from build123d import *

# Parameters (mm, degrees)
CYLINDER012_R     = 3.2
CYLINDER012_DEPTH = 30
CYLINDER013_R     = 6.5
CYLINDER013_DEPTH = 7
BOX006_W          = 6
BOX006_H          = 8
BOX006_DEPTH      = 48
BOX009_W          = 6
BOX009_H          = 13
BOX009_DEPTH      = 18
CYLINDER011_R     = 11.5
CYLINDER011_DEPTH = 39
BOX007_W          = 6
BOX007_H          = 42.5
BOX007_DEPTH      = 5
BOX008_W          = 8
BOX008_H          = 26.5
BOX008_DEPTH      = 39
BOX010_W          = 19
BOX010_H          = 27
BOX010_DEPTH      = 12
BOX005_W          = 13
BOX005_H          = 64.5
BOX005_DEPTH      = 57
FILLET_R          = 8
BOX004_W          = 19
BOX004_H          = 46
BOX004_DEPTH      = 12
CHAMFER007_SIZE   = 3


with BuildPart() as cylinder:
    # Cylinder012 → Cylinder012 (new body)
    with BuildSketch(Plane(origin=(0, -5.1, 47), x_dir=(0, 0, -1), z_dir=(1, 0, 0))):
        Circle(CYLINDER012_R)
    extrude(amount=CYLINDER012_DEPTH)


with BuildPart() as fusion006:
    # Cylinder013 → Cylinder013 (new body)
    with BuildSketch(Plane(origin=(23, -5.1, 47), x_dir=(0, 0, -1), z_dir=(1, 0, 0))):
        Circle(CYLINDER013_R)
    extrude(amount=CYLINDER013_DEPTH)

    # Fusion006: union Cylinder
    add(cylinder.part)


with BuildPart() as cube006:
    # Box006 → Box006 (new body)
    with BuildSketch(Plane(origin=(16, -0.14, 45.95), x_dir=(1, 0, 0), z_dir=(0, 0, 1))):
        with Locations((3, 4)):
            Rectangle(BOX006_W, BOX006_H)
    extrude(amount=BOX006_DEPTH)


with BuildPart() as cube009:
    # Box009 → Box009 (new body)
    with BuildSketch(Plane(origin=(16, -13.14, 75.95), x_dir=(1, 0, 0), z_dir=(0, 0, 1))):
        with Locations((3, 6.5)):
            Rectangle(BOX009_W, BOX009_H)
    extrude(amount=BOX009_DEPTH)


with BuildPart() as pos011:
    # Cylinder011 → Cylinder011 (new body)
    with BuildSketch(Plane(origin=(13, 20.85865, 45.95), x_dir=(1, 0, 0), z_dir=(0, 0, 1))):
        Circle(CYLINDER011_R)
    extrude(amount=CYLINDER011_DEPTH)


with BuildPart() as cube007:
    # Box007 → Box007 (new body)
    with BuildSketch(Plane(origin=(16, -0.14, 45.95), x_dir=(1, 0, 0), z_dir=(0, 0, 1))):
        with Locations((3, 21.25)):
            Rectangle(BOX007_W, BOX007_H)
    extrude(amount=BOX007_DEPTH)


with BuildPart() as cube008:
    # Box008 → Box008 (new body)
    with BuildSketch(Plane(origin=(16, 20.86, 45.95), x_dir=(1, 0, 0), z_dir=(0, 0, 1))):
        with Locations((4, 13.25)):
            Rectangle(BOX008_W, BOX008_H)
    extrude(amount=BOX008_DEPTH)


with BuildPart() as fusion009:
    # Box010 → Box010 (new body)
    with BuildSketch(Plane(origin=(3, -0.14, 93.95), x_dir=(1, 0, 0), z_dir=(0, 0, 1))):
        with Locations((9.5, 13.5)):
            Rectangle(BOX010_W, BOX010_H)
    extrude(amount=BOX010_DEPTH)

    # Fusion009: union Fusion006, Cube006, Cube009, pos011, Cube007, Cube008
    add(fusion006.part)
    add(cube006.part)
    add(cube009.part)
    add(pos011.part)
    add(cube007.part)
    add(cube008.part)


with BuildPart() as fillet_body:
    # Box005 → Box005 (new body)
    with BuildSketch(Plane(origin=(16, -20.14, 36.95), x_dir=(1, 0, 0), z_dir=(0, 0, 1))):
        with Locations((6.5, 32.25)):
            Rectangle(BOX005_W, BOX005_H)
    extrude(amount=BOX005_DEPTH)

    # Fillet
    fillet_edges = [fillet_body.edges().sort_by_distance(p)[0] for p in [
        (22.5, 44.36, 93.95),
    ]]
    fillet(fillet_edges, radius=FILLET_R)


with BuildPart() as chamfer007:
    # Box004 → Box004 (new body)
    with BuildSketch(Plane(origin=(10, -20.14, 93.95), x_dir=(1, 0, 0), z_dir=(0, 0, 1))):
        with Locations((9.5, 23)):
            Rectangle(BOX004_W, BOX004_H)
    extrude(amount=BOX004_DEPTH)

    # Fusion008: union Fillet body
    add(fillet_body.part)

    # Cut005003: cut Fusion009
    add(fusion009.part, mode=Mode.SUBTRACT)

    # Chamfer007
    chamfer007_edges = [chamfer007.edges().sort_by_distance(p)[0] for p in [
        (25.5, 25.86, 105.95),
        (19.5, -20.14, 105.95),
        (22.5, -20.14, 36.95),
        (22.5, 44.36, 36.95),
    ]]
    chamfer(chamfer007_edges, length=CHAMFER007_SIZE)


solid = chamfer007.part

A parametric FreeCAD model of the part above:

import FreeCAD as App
import Part
import Sketcher


def edges_at(feature, points):
    """Names of the edges that pass closest to the given points."""
    edges = feature.Shape.Edges
    near = lambda p: min(range(len(edges)), key=lambda i: edges[i].distToShape(Part.Vertex(*p))[0])
    return sorted({f"Edge{near(p) + 1}" for p in points})


def add_polygon(sketch, points):
    """Adds a closed chain of lines whose ends are joined by coincident constraints."""
    first, n = sketch.GeometryCount, len(points)
    for a, b in zip(points, points[1:] + points[:1]):
        sketch.addGeometry(Part.LineSegment(App.Vector(*a, 0), App.Vector(*b, 0)), False)
    for i in range(n):
        sketch.addConstraint(Sketcher.Constraint("Coincident", first + i, 2, first + (i + 1) % n, 1))

doc = App.newDocument("Part")
body = doc.addObject("PartDesign::Body", "Body")

sketch1 = body.newObject("Sketcher::SketchObject", "Sketch")
sketch1.AttachmentSupport = (doc.getObject("YZ_Plane"), [""])
sketch1.MapMode = "FlatFace"
sketch1.addGeometry(Part.Circle(App.Vector(-5.1, 47, 0), App.Vector(0, 0, 1), 3.2), False)
sketch1.addConstraint(Sketcher.Constraint("Diameter", 0, 6.4))
sketch1.addConstraint(Sketcher.Constraint("DistanceY", -1, 1, 0, 3, 47.0))
sketch1.addConstraint(Sketcher.Constraint("DistanceX", 0, 3, -1, 1, 5.1))
pad1 = body.newObject("PartDesign::Pad", "Pad")
pad1.Profile = sketch1
pad1.Length = 30
body2 = doc.addObject("PartDesign::Body", "Body001")

sketch2 = body2.newObject("Sketcher::SketchObject", "Sketch001")
sketch2.AttachmentSupport = (doc.getObject("YZ_Plane001"), [""])
sketch2.MapMode = "FlatFace"
sketch2.AttachmentOffset = App.Placement(App.Vector(0, 0, 23), App.Rotation())
sketch2.addGeometry(Part.Circle(App.Vector(-5.1, 47, 0), App.Vector(0, 0, 1), 6.5), False)
sketch2.addConstraint(Sketcher.Constraint("Diameter", 0, 13.0))
sketch2.addConstraint(Sketcher.Constraint("DistanceY", -1, 1, 0, 3, 47.0))
sketch2.addConstraint(Sketcher.Constraint("DistanceX", 0, 3, -1, 1, 5.1))
pad2 = body2.newObject("PartDesign::Pad", "Pad001")
pad2.Profile = sketch2
pad2.Length = 7
doc.recompute()

boolean = body2.newObject("PartDesign::Boolean", "Boolean")
boolean.Type = "Fuse"
boolean.addObjects([body])
body3 = doc.addObject("PartDesign::Body", "Body002")

sketch3 = body3.newObject("Sketcher::SketchObject", "Sketch002")
sketch3.AttachmentSupport = (doc.getObject("XY_Plane002"), [""])
sketch3.MapMode = "FlatFace"
sketch3.AttachmentOffset = App.Placement(App.Vector(0, 0, 45.95), App.Rotation())
add_polygon(sketch3, [(16, 7.86), (16, -0.14), (22, -0.14), (22, 7.86)])
sketch3.addConstraint(Sketcher.Constraint("Vertical", 0))
sketch3.addConstraint(Sketcher.Constraint("Horizontal", 1))
sketch3.addConstraint(Sketcher.Constraint("Vertical", 2))
sketch3.addConstraint(Sketcher.Constraint("Horizontal", 3))
sketch3.addConstraint(Sketcher.Constraint("DistanceX", 1, 1, 1, 2, 6.0))
sketch3.addConstraint(Sketcher.Constraint("DistanceY", 0, 2, 0, 1, 8.0))
sketch3.addConstraint(Sketcher.Constraint("DistanceX", -1, 1, 0, 2, 16.0))
sketch3.addConstraint(Sketcher.Constraint("DistanceY", 0, 2, -1, 1, 0.14))
pad3 = body3.newObject("PartDesign::Pad", "Pad002")
pad3.Profile = sketch3
pad3.Length = 48
body4 = doc.addObject("PartDesign::Body", "Body003")

sketch4 = body4.newObject("Sketcher::SketchObject", "Sketch003")
sketch4.AttachmentSupport = (doc.getObject("XY_Plane003"), [""])
sketch4.MapMode = "FlatFace"
sketch4.AttachmentOffset = App.Placement(App.Vector(0, 0, 75.95), App.Rotation())
add_polygon(sketch4, [(16, -0.14), (16, -13.14), (22, -13.14), (22, -0.14)])
sketch4.addConstraint(Sketcher.Constraint("Vertical", 0))
sketch4.addConstraint(Sketcher.Constraint("Horizontal", 1))
sketch4.addConstraint(Sketcher.Constraint("Vertical", 2))
sketch4.addConstraint(Sketcher.Constraint("Horizontal", 3))
sketch4.addConstraint(Sketcher.Constraint("DistanceX", 1, 1, 1, 2, 6.0))
sketch4.addConstraint(Sketcher.Constraint("DistanceY", 0, 2, 0, 1, 13.0))
sketch4.addConstraint(Sketcher.Constraint("DistanceX", -1, 1, 0, 2, 16.0))
sketch4.addConstraint(Sketcher.Constraint("DistanceY", 0, 2, -1, 1, 13.14))
pad4 = body4.newObject("PartDesign::Pad", "Pad003")
pad4.Profile = sketch4
pad4.Length = 18
body5 = doc.addObject("PartDesign::Body", "Body004")

sketch5 = body5.newObject("Sketcher::SketchObject", "Sketch004")
sketch5.AttachmentSupport = (doc.getObject("XY_Plane004"), [""])
sketch5.MapMode = "FlatFace"
sketch5.AttachmentOffset = App.Placement(App.Vector(0, 0, 45.95), App.Rotation())
sketch5.addGeometry(Part.Circle(App.Vector(13, 20.85865, 0), App.Vector(0, 0, 1), 11.5), False)
sketch5.addConstraint(Sketcher.Constraint("Diameter", 0, 23.0))
sketch5.addConstraint(Sketcher.Constraint("DistanceX", -1, 1, 0, 3, 13.0))
sketch5.addConstraint(Sketcher.Constraint("DistanceY", -1, 1, 0, 3, 20.85865))
pad5 = body5.newObject("PartDesign::Pad", "Pad004")
pad5.Profile = sketch5
pad5.Length = 39
body6 = doc.addObject("PartDesign::Body", "Body005")

sketch6 = body6.newObject("Sketcher::SketchObject", "Sketch005")
sketch6.AttachmentSupport = (doc.getObject("XY_Plane005"), [""])
sketch6.MapMode = "FlatFace"
sketch6.AttachmentOffset = App.Placement(App.Vector(0, 0, 45.95), App.Rotation())
add_polygon(sketch6, [(16, 42.36), (16, -0.14), (22, -0.14), (22, 42.36)])
sketch6.addConstraint(Sketcher.Constraint("Vertical", 0))
sketch6.addConstraint(Sketcher.Constraint("Horizontal", 1))
sketch6.addConstraint(Sketcher.Constraint("Vertical", 2))
sketch6.addConstraint(Sketcher.Constraint("Horizontal", 3))
sketch6.addConstraint(Sketcher.Constraint("DistanceX", 1, 1, 1, 2, 6.0))
sketch6.addConstraint(Sketcher.Constraint("DistanceY", 0, 2, 0, 1, 42.5))
sketch6.addConstraint(Sketcher.Constraint("DistanceX", -1, 1, 0, 2, 16.0))
sketch6.addConstraint(Sketcher.Constraint("DistanceY", 0, 2, -1, 1, 0.14))
pad6 = body6.newObject("PartDesign::Pad", "Pad005")
pad6.Profile = sketch6
pad6.Length = 5
body7 = doc.addObject("PartDesign::Body", "Body006")

sketch7 = body7.newObject("Sketcher::SketchObject", "Sketch006")
sketch7.AttachmentSupport = (doc.getObject("XY_Plane006"), [""])
sketch7.MapMode = "FlatFace"
sketch7.AttachmentOffset = App.Placement(App.Vector(0, 0, 45.95), App.Rotation())
add_polygon(sketch7, [(16, 47.36), (16, 20.86), (24, 20.86), (24, 47.36)])
sketch7.addConstraint(Sketcher.Constraint("Vertical", 0))
sketch7.addConstraint(Sketcher.Constraint("Horizontal", 1))
sketch7.addConstraint(Sketcher.Constraint("Vertical", 2))
sketch7.addConstraint(Sketcher.Constraint("Horizontal", 3))
sketch7.addConstraint(Sketcher.Constraint("DistanceX", 1, 1, 1, 2, 8.0))
sketch7.addConstraint(Sketcher.Constraint("DistanceY", 0, 2, 0, 1, 26.5))
sketch7.addConstraint(Sketcher.Constraint("DistanceX", -1, 1, 0, 2, 16.0))
sketch7.addConstraint(Sketcher.Constraint("DistanceY", -1, 1, 0, 2, 20.86))
pad7 = body7.newObject("PartDesign::Pad", "Pad006")
pad7.Profile = sketch7
pad7.Length = 39
body8 = doc.addObject("PartDesign::Body", "Body007")
body8.AllowCompound = True

sketch8 = body8.newObject("Sketcher::SketchObject", "Sketch007")
sketch8.AttachmentSupport = (doc.getObject("XY_Plane007"), [""])
sketch8.MapMode = "FlatFace"
sketch8.AttachmentOffset = App.Placement(App.Vector(0, 0, 93.95), App.Rotation())
add_polygon(sketch8, [(3, 26.86), (3, -0.14), (22, -0.14), (22, 26.86)])
sketch8.addConstraint(Sketcher.Constraint("Vertical", 0))
sketch8.addConstraint(Sketcher.Constraint("Horizontal", 1))
sketch8.addConstraint(Sketcher.Constraint("Vertical", 2))
sketch8.addConstraint(Sketcher.Constraint("Horizontal", 3))
sketch8.addConstraint(Sketcher.Constraint("DistanceX", 1, 1, 1, 2, 19.0))
sketch8.addConstraint(Sketcher.Constraint("DistanceY", 0, 2, 0, 1, 27.0))
sketch8.addConstraint(Sketcher.Constraint("DistanceX", -1, 1, 0, 2, 3.0))
sketch8.addConstraint(Sketcher.Constraint("DistanceY", 0, 2, -1, 1, 0.14))
pad8 = body8.newObject("PartDesign::Pad", "Pad007")
pad8.Profile = sketch8
pad8.Length = 12
doc.recompute()

boolean2 = body8.newObject("PartDesign::Boolean", "Boolean001")
boolean2.Type = "Fuse"
boolean2.addObjects([body2])
doc.recompute()

boolean3 = body8.newObject("PartDesign::Boolean", "Boolean002")
boolean3.Type = "Fuse"
boolean3.addObjects([body3])
doc.recompute()

boolean4 = body8.newObject("PartDesign::Boolean", "Boolean003")
boolean4.Type = "Fuse"
boolean4.addObjects([body4])
doc.recompute()

boolean5 = body8.newObject("PartDesign::Boolean", "Boolean004")
boolean5.Type = "Fuse"
boolean5.addObjects([body5])
doc.recompute()

boolean6 = body8.newObject("PartDesign::Boolean", "Boolean005")
boolean6.Type = "Fuse"
boolean6.addObjects([body6])
doc.recompute()

boolean7 = body8.newObject("PartDesign::Boolean", "Boolean006")
boolean7.Type = "Fuse"
boolean7.addObjects([body7])
body9 = doc.addObject("PartDesign::Body", "Body008")

sketch9 = body9.newObject("Sketcher::SketchObject", "Sketch008")
sketch9.AttachmentSupport = (doc.getObject("XY_Plane008"), [""])
sketch9.MapMode = "FlatFace"
sketch9.AttachmentOffset = App.Placement(App.Vector(0, 0, 36.95), App.Rotation())
add_polygon(sketch9, [(16, 44.36), (16, -20.14), (29, -20.14), (29, 44.36)])
sketch9.addConstraint(Sketcher.Constraint("Vertical", 0))
sketch9.addConstraint(Sketcher.Constraint("Horizontal", 1))
sketch9.addConstraint(Sketcher.Constraint("Vertical", 2))
sketch9.addConstraint(Sketcher.Constraint("Horizontal", 3))
sketch9.addConstraint(Sketcher.Constraint("DistanceX", 1, 1, 1, 2, 13.0))
sketch9.addConstraint(Sketcher.Constraint("DistanceY", 0, 2, 0, 1, 64.5))
sketch9.addConstraint(Sketcher.Constraint("DistanceX", -1, 1, 0, 2, 16.0))
sketch9.addConstraint(Sketcher.Constraint("DistanceY", 0, 2, -1, 1, 20.14))
pad9 = body9.newObject("PartDesign::Pad", "Pad008")
pad9.Profile = sketch9
pad9.Length = 57
doc.recompute()

fillet = body9.newObject("PartDesign::Fillet", "Fillet")
fillet.Base = (pad9, edges_at(pad9, [(22.5, 44.36, 93.95)]))
fillet.Radius = 8
body10 = doc.addObject("PartDesign::Body", "Body009")

sketch10 = body10.newObject("Sketcher::SketchObject", "Sketch009")
sketch10.AttachmentSupport = (doc.getObject("XY_Plane009"), [""])
sketch10.MapMode = "FlatFace"
sketch10.AttachmentOffset = App.Placement(App.Vector(0, 0, 93.95), App.Rotation())
add_polygon(sketch10, [(10, 25.86), (10, -20.14), (29, -20.14), (29, 25.86)])
sketch10.addConstraint(Sketcher.Constraint("Vertical", 0))
sketch10.addConstraint(Sketcher.Constraint("Horizontal", 1))
sketch10.addConstraint(Sketcher.Constraint("Vertical", 2))
sketch10.addConstraint(Sketcher.Constraint("Horizontal", 3))
sketch10.addConstraint(Sketcher.Constraint("DistanceX", 1, 1, 1, 2, 19.0))
sketch10.addConstraint(Sketcher.Constraint("DistanceY", 0, 2, 0, 1, 46.0))
sketch10.addConstraint(Sketcher.Constraint("DistanceX", -1, 1, 0, 2, 10.0))
sketch10.addConstraint(Sketcher.Constraint("DistanceY", 0, 2, -1, 1, 20.14))
pad10 = body10.newObject("PartDesign::Pad", "Pad009")
pad10.Profile = sketch10
pad10.Length = 12
doc.recompute()

boolean8 = body10.newObject("PartDesign::Boolean", "Boolean007")
boolean8.Type = "Fuse"
boolean8.addObjects([body9])
doc.recompute()

boolean9 = body10.newObject("PartDesign::Boolean", "Boolean008")
boolean9.Type = "Cut"
boolean9.addObjects([body8])
doc.recompute()

chamfer = body10.newObject("PartDesign::Chamfer", "Chamfer")
chamfer.Base = (boolean9, edges_at(boolean9, [
    (25.5, 25.86, 105.95),
    (19.5, -20.14, 105.95),
    (22.5, -20.14, 36.95),
    (22.5, 44.36, 36.95),
]))
chamfer.Size = 3

doc.recompute()
